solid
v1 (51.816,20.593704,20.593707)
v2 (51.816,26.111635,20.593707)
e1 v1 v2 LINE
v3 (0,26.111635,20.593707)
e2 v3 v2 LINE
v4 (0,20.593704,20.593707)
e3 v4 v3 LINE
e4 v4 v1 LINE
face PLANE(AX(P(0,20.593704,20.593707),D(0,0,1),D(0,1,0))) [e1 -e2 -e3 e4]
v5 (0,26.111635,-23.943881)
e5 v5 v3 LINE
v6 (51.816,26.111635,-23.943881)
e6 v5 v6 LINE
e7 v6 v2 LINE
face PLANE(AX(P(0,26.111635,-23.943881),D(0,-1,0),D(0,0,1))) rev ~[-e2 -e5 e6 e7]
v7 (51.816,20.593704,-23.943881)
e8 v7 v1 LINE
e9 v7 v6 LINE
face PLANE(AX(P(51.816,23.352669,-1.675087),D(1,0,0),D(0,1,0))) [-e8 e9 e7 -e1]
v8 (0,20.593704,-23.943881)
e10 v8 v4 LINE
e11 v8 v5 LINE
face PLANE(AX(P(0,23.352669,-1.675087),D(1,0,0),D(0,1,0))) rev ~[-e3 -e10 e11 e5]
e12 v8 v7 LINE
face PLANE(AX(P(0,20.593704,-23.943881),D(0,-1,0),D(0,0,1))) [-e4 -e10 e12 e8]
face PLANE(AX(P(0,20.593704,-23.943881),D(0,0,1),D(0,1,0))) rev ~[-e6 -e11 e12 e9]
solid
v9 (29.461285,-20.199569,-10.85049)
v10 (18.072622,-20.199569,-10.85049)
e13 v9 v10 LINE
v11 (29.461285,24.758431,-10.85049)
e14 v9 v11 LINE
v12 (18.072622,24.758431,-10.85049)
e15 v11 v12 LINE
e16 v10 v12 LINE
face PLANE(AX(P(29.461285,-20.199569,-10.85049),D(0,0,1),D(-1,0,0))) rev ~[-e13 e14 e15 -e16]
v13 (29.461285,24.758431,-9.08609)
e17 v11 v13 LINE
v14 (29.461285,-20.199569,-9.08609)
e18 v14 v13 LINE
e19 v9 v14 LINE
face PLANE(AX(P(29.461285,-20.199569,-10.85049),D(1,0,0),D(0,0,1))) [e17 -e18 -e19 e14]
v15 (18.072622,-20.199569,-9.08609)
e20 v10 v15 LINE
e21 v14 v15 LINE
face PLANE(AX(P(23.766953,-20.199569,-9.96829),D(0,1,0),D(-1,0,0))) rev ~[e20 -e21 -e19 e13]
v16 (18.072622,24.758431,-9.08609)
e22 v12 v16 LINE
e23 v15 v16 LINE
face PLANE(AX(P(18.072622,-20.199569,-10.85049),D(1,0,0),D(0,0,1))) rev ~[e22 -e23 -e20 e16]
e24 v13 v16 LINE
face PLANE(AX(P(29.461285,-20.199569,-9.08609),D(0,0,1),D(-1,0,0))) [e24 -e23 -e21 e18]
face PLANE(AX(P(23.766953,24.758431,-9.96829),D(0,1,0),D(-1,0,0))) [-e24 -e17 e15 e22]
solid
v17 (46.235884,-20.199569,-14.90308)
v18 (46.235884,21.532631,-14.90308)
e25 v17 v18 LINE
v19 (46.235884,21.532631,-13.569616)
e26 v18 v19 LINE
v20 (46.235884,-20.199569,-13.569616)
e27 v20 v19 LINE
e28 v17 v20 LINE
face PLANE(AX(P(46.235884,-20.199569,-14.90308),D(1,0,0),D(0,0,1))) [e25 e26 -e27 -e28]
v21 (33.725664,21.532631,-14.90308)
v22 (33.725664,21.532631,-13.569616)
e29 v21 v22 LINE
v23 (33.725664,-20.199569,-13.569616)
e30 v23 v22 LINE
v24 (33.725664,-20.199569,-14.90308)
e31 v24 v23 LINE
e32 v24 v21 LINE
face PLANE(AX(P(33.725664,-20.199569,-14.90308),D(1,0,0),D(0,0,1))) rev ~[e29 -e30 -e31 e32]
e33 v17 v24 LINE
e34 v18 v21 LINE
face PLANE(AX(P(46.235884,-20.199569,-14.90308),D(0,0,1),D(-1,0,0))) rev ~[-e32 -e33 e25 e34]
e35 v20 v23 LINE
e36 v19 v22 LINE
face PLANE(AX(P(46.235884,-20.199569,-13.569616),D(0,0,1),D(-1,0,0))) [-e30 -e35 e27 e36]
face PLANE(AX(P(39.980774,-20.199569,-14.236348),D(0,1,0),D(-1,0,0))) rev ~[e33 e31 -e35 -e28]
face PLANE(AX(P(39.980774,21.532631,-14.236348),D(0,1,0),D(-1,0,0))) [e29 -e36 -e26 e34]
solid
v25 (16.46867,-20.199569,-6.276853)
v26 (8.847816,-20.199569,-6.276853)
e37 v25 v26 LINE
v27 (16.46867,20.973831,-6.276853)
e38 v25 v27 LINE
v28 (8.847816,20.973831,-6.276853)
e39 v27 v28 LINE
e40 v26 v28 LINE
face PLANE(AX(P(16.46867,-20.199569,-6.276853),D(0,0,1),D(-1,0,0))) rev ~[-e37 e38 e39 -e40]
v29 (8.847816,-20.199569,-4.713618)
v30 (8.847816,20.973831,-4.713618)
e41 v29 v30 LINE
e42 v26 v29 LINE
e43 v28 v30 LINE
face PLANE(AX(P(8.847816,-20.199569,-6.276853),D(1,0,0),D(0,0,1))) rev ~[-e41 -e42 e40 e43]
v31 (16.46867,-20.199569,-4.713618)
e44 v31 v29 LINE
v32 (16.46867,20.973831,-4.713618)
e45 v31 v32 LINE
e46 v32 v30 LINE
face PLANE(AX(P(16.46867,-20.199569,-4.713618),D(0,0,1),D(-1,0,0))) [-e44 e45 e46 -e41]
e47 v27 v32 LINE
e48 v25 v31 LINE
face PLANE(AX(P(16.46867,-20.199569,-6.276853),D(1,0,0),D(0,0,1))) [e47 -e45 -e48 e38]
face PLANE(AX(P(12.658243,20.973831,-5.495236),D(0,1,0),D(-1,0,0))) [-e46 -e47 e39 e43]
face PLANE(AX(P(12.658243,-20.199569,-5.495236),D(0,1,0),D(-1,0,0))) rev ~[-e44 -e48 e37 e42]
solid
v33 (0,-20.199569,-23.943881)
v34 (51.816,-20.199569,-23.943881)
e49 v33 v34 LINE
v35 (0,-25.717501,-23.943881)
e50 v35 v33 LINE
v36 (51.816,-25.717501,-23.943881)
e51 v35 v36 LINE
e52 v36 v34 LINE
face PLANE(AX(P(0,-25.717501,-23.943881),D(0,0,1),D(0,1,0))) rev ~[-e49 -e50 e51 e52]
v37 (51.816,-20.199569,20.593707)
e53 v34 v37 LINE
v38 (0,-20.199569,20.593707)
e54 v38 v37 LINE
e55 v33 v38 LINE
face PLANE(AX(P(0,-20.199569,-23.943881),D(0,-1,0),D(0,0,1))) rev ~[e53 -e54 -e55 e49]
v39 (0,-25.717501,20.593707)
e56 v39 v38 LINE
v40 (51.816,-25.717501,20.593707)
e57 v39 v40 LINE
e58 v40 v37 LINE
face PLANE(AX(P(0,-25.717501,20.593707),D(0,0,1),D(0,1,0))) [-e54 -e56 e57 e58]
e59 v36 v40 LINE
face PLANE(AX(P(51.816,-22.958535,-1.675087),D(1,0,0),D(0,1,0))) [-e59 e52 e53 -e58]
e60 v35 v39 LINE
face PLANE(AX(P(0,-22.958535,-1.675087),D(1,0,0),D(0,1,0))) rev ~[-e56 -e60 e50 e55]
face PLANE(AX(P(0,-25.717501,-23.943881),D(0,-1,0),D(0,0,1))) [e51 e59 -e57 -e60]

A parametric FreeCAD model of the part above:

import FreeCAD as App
import Part
import Sketcher
from FreeCAD import Vector
Q = App.Units.Quantity

doc = App.newDocument("Part")
params = doc.addObject("Spreadsheet::Sheet", "Params")
for row, (alias, value) in enumerate([
    ("pad1_length", "2.04 in"),
    ("pad2_length", "1.643 in"),
    ("pad3_length", "1.77 in"),
    ("pad4_length", "1.621 in"),
], start=1):
    params.set(f"A{row}", alias)
    params.set(f"B{row}", "=" + value)
    params.setAlias(f"B{row}", alias)

body = doc.addObject("PartDesign::Body", "Body")
body.AllowCompound = True

sketch1 = body.newObject("Sketcher::SketchObject", "Sketch")
sketch1.AttachmentSupport = (doc.getObject("YZ_Plane"), [""])
sketch1.MapMode = "FlatFace"
sketch1.addGeometry([
    Part.LineSegment(Vector(21, 21, 0), Vector(21, -24, 0)),
    Part.LineSegment(Vector(21, -24, 0), Vector(26, -24, 0)),
    Part.LineSegment(Vector(26, -24, 0), Vector(26, 21, 0)),
    Part.LineSegment(Vector(26, 21, 0), Vector(21, 21, 0)),
    Part.LineSegment(Vector(-26, 21, 0), Vector(-26, -24, 0)),
    Part.LineSegment(Vector(-26, -24, 0), Vector(-20, -24, 0)),
    Part.LineSegment(Vector(-20, -24, 0), Vector(-20, 21, 0)),
    Part.LineSegment(Vector(-20, 21, 0), Vector(-26, 21, 0)),
], False)
sketch1.addConstraint([
    Sketcher.Constraint("Coincident", 0, 2, 1, 1),
    Sketcher.Constraint("Coincident", 1, 2, 2, 1),
    Sketcher.Constraint("Coincident", 2, 2, 3, 1),
    Sketcher.Constraint("Coincident", 3, 2, 0, 1),
    Sketcher.Constraint("Coincident", 4, 2, 5, 1),
    Sketcher.Constraint("Coincident", 5, 2, 6, 1),
    Sketcher.Constraint("Coincident", 6, 2, 7, 1),
    Sketcher.Constraint("Coincident", 7, 2, 4, 1),
    Sketcher.Constraint("Vertical", 0),
    Sketcher.Constraint("Horizontal", 1),
    Sketcher.Constraint("Vertical", 2),
    Sketcher.Constraint("Horizontal", 3),
    Sketcher.Constraint("Vertical", 4),
    Sketcher.Constraint("Horizontal", 5),
    Sketcher.Constraint("Vertical", 6),
    Sketcher.Constraint("Horizontal", 7),
    Sketcher.Constraint("Horizontal", 1, 2, 4, 2),
    Sketcher.Constraint("Horizontal", 3, 2, 6, 2),
    Sketcher.Constraint("Equal", 3, 5),
    Sketcher.Constraint("DistanceX", 4, 2, -1, 1, Q("1.0125 in")),
    Sketcher.Constraint("DistanceX", 1, 1, 1, 2, Q("5.517931 mm")),
    Sketcher.Constraint("DistanceY", 0, 2, 0, 1, Q("44.537588 mm")),
    Sketcher.Constraint("DistanceY", 0, 2, -1, 1, Q("23.943881 mm")),
    Sketcher.Constraint("DistanceX", -1, 1, 0, 2, Q("20.593704 mm")),
])
pad1 = body.newObject("PartDesign::Pad", "Pad")
pad1.Profile = sketch1
pad1.setExpression("Length", "Params.pad1_length")
body2 = doc.addObject("PartDesign::Body", "Body001")

sketch2 = body2.newObject("Sketcher::SketchObject", "Sketch001")
sketch2.AttachmentSupport = (doc.getObject("XZ_Plane001"), [""])
sketch2.MapMode = "FlatFace"
sketch2.AttachmentOffset = App.Placement(Vector(0, 0, 20.199569), App.Rotation())
sketch2.addGeometry([
    Part.LineSegment(Vector(46.2, -13.6, 0), Vector(46.2, -14.9, 0)),
    Part.LineSegment(Vector(46.2, -14.9, 0), Vector(33.7, -14.9, 0)),
    Part.LineSegment(Vector(33.7, -14.9, 0), Vector(33.7, -13.6, 0)),
    Part.LineSegment(Vector(33.7, -13.6, 0), Vector(46.2, -13.6, 0)),
], False)
sketch2.addConstraint([
    Sketcher.Constraint("Coincident", 0, 2, 1, 1),
    Sketcher.Constraint("Coincident", 1, 2, 2, 1),
    Sketcher.Constraint("Coincident", 2, 2, 3, 1),
    Sketcher.Constraint("Coincident", 3, 2, 0, 1),
    Sketcher.Constraint("Vertical", 0),
    Sketcher.Constraint("Horizontal", 1),
    Sketcher.Constraint("Vertical", 2),
    Sketcher.Constraint("Horizontal", 3),
    Sketcher.Constraint("DistanceX", 1, 2, 1, 1, Q("12.510221 mm")),
    Sketcher.Constraint("DistanceY", 0, 2, 0, 1, Q("1.333464 mm")),
    Sketcher.Constraint("DistanceY", 0, 2, -1, 1, Q("14.90308 mm")),
    Sketcher.Constraint("DistanceX", -1, 1, 0, 2, Q("46.235884 mm")),
])
pad2 = body2.newObject("PartDesign::Pad", "Pad001")
pad2.Profile = sketch2
pad2.setExpression("Length", "Params.pad2_length")
pad2.Reversed = True
body3 = doc.addObject("PartDesign::Body", "Body002")

sketch3 = body3.newObject("Sketcher::SketchObject", "Sketch002")
sketch3.AttachmentSupport = (doc.getObject("XZ_Plane002"), [""])
sketch3.MapMode = "FlatFace"
sketch3.AttachmentOffset = App.Placement(Vector(0, 0, 20.199569), App.Rotation())
sketch3.addGeometry([
    Part.LineSegment(Vector(29.5, -9.1, 0), Vector(29.5, -10.9, 0)),
    Part.LineSegment(Vector(29.5, -10.9, 0), Vector(18.1, -10.9, 0)),
    Part.LineSegment(Vector(18.1, -10.9, 0), Vector(18.1, -9.1, 0)),
    Part.LineSegment(Vector(18.1, -9.1, 0), Vector(29.5, -9.1, 0)),
], False)
sketch3.addConstraint([
    Sketcher.Constraint("Coincident", 0, 2, 1, 1),
    Sketcher.Constraint("Coincident", 1, 2, 2, 1),
    Sketcher.Constraint("Coincident", 2, 2, 3, 1),
    Sketcher.Constraint("Coincident", 3, 2, 0, 1),
    Sketcher.Constraint("Vertical", 0),
    Sketcher.Constraint("Horizontal", 1),
    Sketcher.Constraint("Vertical", 2),
    Sketcher.Constraint("Horizontal", 3),
    Sketcher.Constraint("DistanceY", 0, 2, 0, 1, Q("1.764399 mm")),
    Sketcher.Constraint("DistanceX", 1, 2, 1, 1, Q("11.388663 mm")),
    Sketcher.Constraint("DistanceY", 0, 2, -1, 1, Q("10.85049 mm")),
    Sketcher.Constraint("DistanceX", -1, 1, 1, 2, Q("18.072622 mm")),
])
pad3 = body3.newObject("PartDesign::Pad", "Pad002")
pad3.Profile = sketch3
pad3.setExpression("Length", "Params.pad3_length")
pad3.Reversed = True
body4 = doc.addObject("PartDesign::Body", "Body003")

sketch4 = body4.newObject("Sketcher::SketchObject", "Sketch003")
sketch4.AttachmentSupport = (doc.getObject("XZ_Plane003"), [""])
sketch4.MapMode = "FlatFace"
sketch4.AttachmentOffset = App.Placement(Vector(0, 0, 20.199569), App.Rotation())
sketch4.addGeometry([
    Part.LineSegment(Vector(16.5, -4.7, 0), Vector(16.5, -6.3, 0)),
    Part.LineSegment(Vector(16.5, -6.3, 0), Vector(8.8, -6.3, 0)),
    Part.LineSegment(Vector(8.8, -6.3, 0), Vector(8.8, -4.7, 0)),
    Part.LineSegment(Vector(8.8, -4.7, 0), Vector(16.5, -4.7, 0)),
], False)
sketch4.addConstraint([
    Sketcher.Constraint("Coincident", 0, 2, 1, 1),
    Sketcher.Constraint("Coincident", 1, 2, 2, 1),
    Sketcher.Constraint("Coincident", 2, 2, 3, 1),
    Sketcher.Constraint("Coincident", 3, 2, 0, 1),
    Sketcher.Constraint("Vertical", 0),
    Sketcher.Constraint("Horizontal", 1),
    Sketcher.Constraint("Vertical", 2),
    Sketcher.Constraint("Horizontal", 3),
    Sketcher.Constraint("DistanceX", 1, 2, 1, 1, Q("7.620854 mm")),
    Sketcher.Constraint("DistanceY", 0, 2, 0, 1, Q("1.563235 mm")),
    Sketcher.Constraint("DistanceX", -1, 1, 0, 2, Q("16.46867 mm")),
    Sketcher.Constraint("DistanceY", 2, 2, -1, 1, Q("4.713618 mm")),
])
pad4 = body4.newObject("PartDesign::Pad", "Pad003")
pad4.Profile = sketch4
pad4.setExpression("Length", "Params.pad4_length")
pad4.Reversed = True

doc.recompute()
